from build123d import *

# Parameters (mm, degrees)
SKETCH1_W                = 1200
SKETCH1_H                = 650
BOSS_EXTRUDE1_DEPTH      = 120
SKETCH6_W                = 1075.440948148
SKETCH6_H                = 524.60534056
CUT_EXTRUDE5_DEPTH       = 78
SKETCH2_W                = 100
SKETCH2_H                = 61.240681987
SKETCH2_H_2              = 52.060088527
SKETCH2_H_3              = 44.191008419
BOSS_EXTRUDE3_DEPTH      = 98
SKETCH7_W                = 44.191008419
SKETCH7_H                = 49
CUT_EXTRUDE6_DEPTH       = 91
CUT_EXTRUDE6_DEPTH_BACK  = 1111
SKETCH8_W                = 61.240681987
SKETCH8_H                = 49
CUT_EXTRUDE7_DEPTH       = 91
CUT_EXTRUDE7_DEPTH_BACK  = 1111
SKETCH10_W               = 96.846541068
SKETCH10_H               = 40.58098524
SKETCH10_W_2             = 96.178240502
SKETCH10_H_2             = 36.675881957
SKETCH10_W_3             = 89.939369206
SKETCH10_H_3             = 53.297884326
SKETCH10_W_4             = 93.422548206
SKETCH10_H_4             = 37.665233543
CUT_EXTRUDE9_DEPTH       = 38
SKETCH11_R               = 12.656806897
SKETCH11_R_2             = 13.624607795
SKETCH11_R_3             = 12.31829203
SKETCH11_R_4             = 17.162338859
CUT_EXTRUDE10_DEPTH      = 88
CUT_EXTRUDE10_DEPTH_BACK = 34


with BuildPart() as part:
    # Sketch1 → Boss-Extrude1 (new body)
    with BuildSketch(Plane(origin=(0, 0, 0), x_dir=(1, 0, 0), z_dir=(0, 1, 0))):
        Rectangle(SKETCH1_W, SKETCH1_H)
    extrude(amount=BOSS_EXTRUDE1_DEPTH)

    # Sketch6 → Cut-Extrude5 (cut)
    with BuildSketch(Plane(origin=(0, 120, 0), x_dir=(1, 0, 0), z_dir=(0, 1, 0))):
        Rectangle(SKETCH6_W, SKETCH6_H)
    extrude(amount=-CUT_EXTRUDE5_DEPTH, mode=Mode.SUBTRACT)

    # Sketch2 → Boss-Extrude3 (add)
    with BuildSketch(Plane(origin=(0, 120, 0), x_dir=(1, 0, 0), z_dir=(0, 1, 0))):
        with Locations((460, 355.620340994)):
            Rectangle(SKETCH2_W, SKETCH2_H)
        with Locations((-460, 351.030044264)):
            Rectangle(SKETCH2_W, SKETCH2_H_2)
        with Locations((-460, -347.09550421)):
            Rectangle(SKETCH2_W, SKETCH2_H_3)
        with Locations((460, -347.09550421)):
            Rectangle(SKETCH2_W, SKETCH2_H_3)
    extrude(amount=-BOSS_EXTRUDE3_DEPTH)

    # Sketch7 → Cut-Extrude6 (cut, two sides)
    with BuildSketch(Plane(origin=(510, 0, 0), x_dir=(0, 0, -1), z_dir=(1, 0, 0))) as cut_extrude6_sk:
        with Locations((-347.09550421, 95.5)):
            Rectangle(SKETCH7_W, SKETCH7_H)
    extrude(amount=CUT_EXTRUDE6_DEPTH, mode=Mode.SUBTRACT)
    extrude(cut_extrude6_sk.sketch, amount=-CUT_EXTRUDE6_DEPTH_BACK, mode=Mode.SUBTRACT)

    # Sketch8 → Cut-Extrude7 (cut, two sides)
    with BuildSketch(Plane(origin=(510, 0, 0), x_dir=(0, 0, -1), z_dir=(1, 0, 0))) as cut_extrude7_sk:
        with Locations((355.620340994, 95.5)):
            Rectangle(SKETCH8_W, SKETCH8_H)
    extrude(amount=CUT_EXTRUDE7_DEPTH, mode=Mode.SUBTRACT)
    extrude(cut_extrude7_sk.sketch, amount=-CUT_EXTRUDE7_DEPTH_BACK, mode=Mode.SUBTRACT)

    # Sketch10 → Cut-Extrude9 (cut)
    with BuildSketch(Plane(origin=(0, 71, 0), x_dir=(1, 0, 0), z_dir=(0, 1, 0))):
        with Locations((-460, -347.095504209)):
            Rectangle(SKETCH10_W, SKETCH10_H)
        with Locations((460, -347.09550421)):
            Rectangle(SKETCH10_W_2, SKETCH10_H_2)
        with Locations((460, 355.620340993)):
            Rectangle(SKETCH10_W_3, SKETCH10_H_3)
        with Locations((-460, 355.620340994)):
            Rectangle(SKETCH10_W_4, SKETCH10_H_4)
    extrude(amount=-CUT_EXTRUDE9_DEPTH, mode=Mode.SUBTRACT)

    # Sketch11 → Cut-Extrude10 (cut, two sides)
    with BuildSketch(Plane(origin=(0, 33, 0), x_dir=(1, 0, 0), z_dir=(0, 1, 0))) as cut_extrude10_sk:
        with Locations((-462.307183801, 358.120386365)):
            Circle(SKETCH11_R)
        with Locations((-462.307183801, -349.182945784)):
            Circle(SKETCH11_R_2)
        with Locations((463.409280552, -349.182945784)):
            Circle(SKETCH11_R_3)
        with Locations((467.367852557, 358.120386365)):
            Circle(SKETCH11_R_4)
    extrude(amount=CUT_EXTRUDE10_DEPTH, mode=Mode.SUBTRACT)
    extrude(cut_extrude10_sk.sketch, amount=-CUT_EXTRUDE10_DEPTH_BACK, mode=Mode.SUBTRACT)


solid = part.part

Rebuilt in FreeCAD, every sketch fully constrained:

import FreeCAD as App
import Part
import Sketcher

V = App.Vector


def add_polygon(sketch, points):
    """Adds a closed chain of lines whose ends are joined by coincident constraints."""
    first, n = sketch.GeometryCount, len(points)
    for a, b in zip(points, points[1:] + points[:1]):
        sketch.addGeometry(Part.LineSegment(App.Vector(*a, 0), App.Vector(*b, 0)), False)
    for i in range(n):
        sketch.addConstraint(Sketcher.Constraint("Coincident", first + i, 2, first + (i + 1) % n, 1))

doc = App.newDocument("Part")
params = doc.addObject("Spreadsheet::Sheet", "Params")
for row, (alias, value) in enumerate([
    ("sketch1_width", "1200 mm"),
    ("sketch1_height", "650 mm"),
    ("pad1_length", "120 mm"),
    ("pocket1_length", "78 mm"),
    ("sketch3_width", "100 mm"),
    ("pad2_length", "98 mm"),
    ("sketch4_width", "49 mm"),
    ("sketch5_width", "49 mm"),
    ("pocket4_length", "38 mm"),
], start=1):
    params.set(f"A{row}", alias)
    params.set(f"B{row}", "=" + value)
    params.setAlias(f"B{row}", alias)

body = doc.addObject("PartDesign::Body", "Body")

sketch1 = doc.addObject("Sketcher::SketchObject", "Sketch")
body.addObject(sketch1)
sketch1.AttachmentSupport = (doc.XZ_Plane, [""])
sketch1.MapMode = "FlatFace"
add_polygon(sketch1, [(-600, -325), (-600, 325), (600, 325), (600, -325)])
sketch1.addConstraint([
    Sketcher.Constraint("Vertical", 0),
    Sketcher.Constraint("Horizontal", 1),
    Sketcher.Constraint("Vertical", 2),
    Sketcher.Constraint("Horizontal", 3),
    Sketcher.Constraint("Symmetric", 0, 2, 2, 2, -1, 1),
    Sketcher.Constraint("DistanceX", 1, 1, 1, 2, 1200.0),
    Sketcher.Constraint("DistanceY", 0, 1, 0, 2, 650.0),
])
sketch1.setExpression("Constraints[9]", "Params.sketch1_width")
sketch1.setExpression("Constraints[10]", "Params.sketch1_height")
pad1 = doc.addObject("PartDesign::Pad", "Pad")
body.addObject(pad1)
pad1.Profile = sketch1
pad1.setExpression("Length", "Params.pad1_length")
pad1.Reversed = True

sketch2 = doc.addObject("Sketcher::SketchObject", "Sketch001")
body.addObject(sketch2)
sketch2.AttachmentSupport = (doc.XZ_Plane, [""])
sketch2.MapMode = "FlatFace"
sketch2.AttachmentOffset = App.Placement(V(0, 0, -120), App.Rotation())
add_polygon(sketch2, [(-538, -262), (-538, 262), (538, 262), (538, -262)])
sketch2.addConstraint([
    Sketcher.Constraint("Vertical", 0),
    Sketcher.Constraint("Horizontal", 1),
    Sketcher.Constraint("Vertical", 2),
    Sketcher.Constraint("Horizontal", 3),
    Sketcher.Constraint("Symmetric", 0, 2, 2, 2, -1, 1),
    Sketcher.Constraint("DistanceX", 1, 1, 1, 2, 1075.440948),
    Sketcher.Constraint("DistanceY", 0, 1, 0, 2, 524.605341),
])
pocket1 = doc.addObject("PartDesign::Pocket", "Pocket")
body.addObject(pocket1)
pocket1.Profile = sketch2
pocket1.setExpression("Length", "Params.pocket1_length")
pocket1.Reversed = True

sketch3 = doc.addObject("Sketcher::SketchObject", "Sketch002")
body.addObject(sketch3)
sketch3.AttachmentSupport = (doc.XZ_Plane, [""])
sketch3.MapMode = "FlatFace"
sketch3.AttachmentOffset = App.Placement(V(0, 0, -120), App.Rotation())
add_polygon(sketch3, [(410, -386), (410, -325), (510, -325), (510, -386)])
add_polygon(sketch3, [(-510, -377), (-510, -325), (-410, -325), (-410, -377)])
add_polygon(sketch3, [(-510, 325), (-510, 369), (-410, 369), (-410, 325)])
add_polygon(sketch3, [(410, 325), (410, 369), (510, 369), (510, 325)])
sketch3.addConstraint([
    Sketcher.Constraint("Vertical", 0),
    Sketcher.Constraint("Horizontal", 1),
    Sketcher.Constraint("Vertical", 2),
    Sketcher.Constraint("Horizontal", 3),
    Sketcher.Constraint("Vertical", 4),
    Sketcher.Constraint("Horizontal", 5),
    Sketcher.Constraint("Vertical", 6),
    Sketcher.Constraint("Horizontal", 7),
    Sketcher.Constraint("Vertical", 8),
    Sketcher.Constraint("Horizontal", 9),
    Sketcher.Constraint("Vertical", 10),
    Sketcher.Constraint("Horizontal", 11),
    Sketcher.Constraint("Vertical", 12),
    Sketcher.Constraint("Horizontal", 13),
    Sketcher.Constraint("Vertical", 14),
    Sketcher.Constraint("Horizontal", 15),
    Sketcher.Constraint("Symmetric", 0, 2, 10, 2, -1, 1),
    Sketcher.Constraint("Symmetric", 4, 2, 14, 2, -1, 1),
    Sketcher.Constraint("Symmetric", 1, 2, 4, 2, -2),
    Sketcher.Constraint("Symmetric", 9, 2, 12, 2, -2),
    Sketcher.Constraint("Vertical", 7, 2, 8, 2),
    Sketcher.Constraint("Vertical", 6, 2, 9, 2),
    Sketcher.Constraint("DistanceX", 1, 1, 1, 2, 100.0),
    Sketcher.Constraint("DistanceX", -1, 1, 0, 2, 410.0),
    Sketcher.Constraint("DistanceY", 0, 2, -1, 1, 325.0),
    Sketcher.Constraint("DistanceY", 0, 1, 0, 2, 61.240682),
    Sketcher.Constraint("DistanceY", 4, 1, 4, 2, 52.060089),
    Sketcher.Constraint("DistanceY", 8, 1, 8, 2, 44.191008),
])
sketch3.setExpression("Constraints[38]", "Params.sketch3_width")
pad2 = doc.addObject("PartDesign::Pad", "Pad001")
body.addObject(pad2)
pad2.Profile = sketch3
pad2.setExpression("Length", "Params.pad2_length")

sketch4 = doc.addObject("Sketcher::SketchObject", "Sketch003")
body.addObject(sketch4)
sketch4.AttachmentSupport = (doc.YZ_Plane, [""])
sketch4.MapMode = "FlatFace"
sketch4.AttachmentOffset = App.Placement(V(0, 0, 510), App.Rotation())
add_polygon(sketch4, [(120, 369), (71, 369), (71, 325), (120, 325)])
sketch4.addConstraint([
    Sketcher.Constraint("Horizontal", 0),
    Sketcher.Constraint("Vertical", 1),
    Sketcher.Constraint("Horizontal", 2),
    Sketcher.Constraint("Vertical", 3),
    Sketcher.Constraint("DistanceX", 0, 2, 0, 1, 49.0),
    Sketcher.Constraint("DistanceX", -1, 1, 0, 2, 71.0),
    Sketcher.Constraint("DistanceY", -1, 1, 1, 2, 325.0),
    Sketcher.Constraint("DistanceY", 1, 2, 1, 1, 44.191008),
])
sketch4.setExpression("Constraints[8]", "Params.sketch4_width")
pocket2 = doc.addObject("PartDesign::Pocket", "Pocket001")
body.addObject(pocket2)
pocket2.Profile = sketch4
pocket2.Type = "ThroughAll"
pocket2.Midplane = True

sketch5 = doc.addObject("Sketcher::SketchObject", "Sketch004")
body.addObject(sketch5)
sketch5.AttachmentSupport = (doc.YZ_Plane, [""])
sketch5.MapMode = "FlatFace"
sketch5.AttachmentOffset = App.Placement(V(0, 0, 510), App.Rotation())
add_polygon(sketch5, [(120, -325), (71, -325), (71, -386), (120, -386)])
sketch5.addConstraint([
    Sketcher.Constraint("Horizontal", 0),
    Sketcher.Constraint("Vertical", 1),
    Sketcher.Constraint("Horizontal", 2),
    Sketcher.Constraint("Vertical", 3),
    Sketcher.Constraint("DistanceX", 0, 2, 0, 1, 49.0),
    Sketcher.Constraint("DistanceX", -1, 1, 0, 2, 71.0),
    Sketcher.Constraint("DistanceY", 0, 2, -1, 1, 325.0),
    Sketcher.Constraint("DistanceY", 1, 2, 1, 1, 61.240682),
])
sketch5.setExpression("Constraints[8]", "Params.sketch5_width")
pocket3 = doc.addObject("PartDesign::Pocket", "Pocket002")
body.addObject(pocket3)
pocket3.Profile = sketch5
pocket3.Type = "ThroughAll"
pocket3.Midplane = True

sketch6 = doc.addObject("Sketcher::SketchObject", "Sketch005")
body.addObject(sketch6)
sketch6.AttachmentSupport = (doc.XZ_Plane, [""])
sketch6.MapMode = "FlatFace"
sketch6.AttachmentOffset = App.Placement(V(0, 0, -71), App.Rotation())
add_polygon(sketch6, [(-508, 327), (-508, 367), (-412, 367), (-412, 327)])
add_polygon(sketch6, [(412, 329), (412, 365), (508, 365), (508, 329)])
add_polygon(sketch6, [(415, -382), (415, -329), (505, -329), (505, -382)])
add_polygon(sketch6, [(-507, -374), (-507, -337), (-413, -337), (-413, -374)])
sketch6.addConstraint([
    Sketcher.Constraint("Vertical", 0),
    Sketcher.Constraint("Horizontal", 1),
    Sketcher.Constraint("Vertical", 2),
    Sketcher.Constraint("Horizontal", 3),
    Sketcher.Constraint("Vertical", 4),
    Sketcher.Constraint("Horizontal", 5),
    Sketcher.Constraint("Vertical", 6),
    Sketcher.Constraint("Horizontal", 7),
    Sketcher.Constraint("Vertical", 8),
    Sketcher.Constraint("Horizontal", 9),
    Sketcher.Constraint("Vertical", 10),
    Sketcher.Constraint("Horizontal", 11),
    Sketcher.Constraint("Vertical", 12),
    Sketcher.Constraint("Horizontal", 13),
    Sketcher.Constraint("Vertical", 14),
    Sketcher.Constraint("Horizontal", 15),
    Sketcher.Constraint("DistanceX", 1, 1, 1, 2, 96.846541),
    Sketcher.Constraint("DistanceX", 5, 1, 5, 2, 96.178241),
    Sketcher.Constraint("DistanceX", 9, 1, 9, 2, 89.939369),
    Sketcher.Constraint("DistanceX", 13, 1, 13, 2, 93.422548),
    Sketcher.Constraint("DistanceY", 4, 1, 4, 2, 36.675882),
    Sketcher.Constraint("DistanceY", 8, 2, -1, 1, 328.971399),
    Sketcher.Constraint("DistanceY", 0, 1, 0, 2, 40.580985),
    Sketcher.Constraint("DistanceY", 8, 1, 8, 2, 53.297884),
    Sketcher.Constraint("DistanceY", 12, 1, 12, 2, 37.665234),
    Sketcher.Constraint("DistanceX", 0, 2, -1, 1, 508.423271),
    Sketcher.Constraint("DistanceY", -1, 1, 2, 2, 326.805012),
    Sketcher.Constraint("DistanceX", -1, 1, 4, 2, 411.91088),
    Sketcher.Constraint("DistanceY", 4, 2, 1, 2, 1.952552),
    Sketcher.Constraint("DistanceY", 12, 2, 0, 2, 704.173721),
    Sketcher.Constraint("DistanceX", 12, 2, 8, 2, 921.741589),
    Sketcher.Constraint("DistanceX", -1, 1, 8, 2, 415.030315),
])
pocket4 = doc.addObject("PartDesign::Pocket", "Pocket003")
body.addObject(pocket4)
pocket4.Profile = sketch6
pocket4.setExpression("Length", "Params.pocket4_length")
pocket4.Reversed = True

sketch7 = doc.addObject("Sketcher::SketchObject", "Sketch006")
body.addObject(sketch7)
sketch7.AttachmentSupport = (doc.XZ_Plane, [""])
sketch7.MapMode = "FlatFace"
sketch7.AttachmentOffset = App.Placement(V(0, 0, -33), App.Rotation())
sketch7.addGeometry([
    Part.Circle(V(-462, -358, 0), V(0, 0, 1), 13),
    Part.Circle(V(-462, 349, 0), V(0, 0, 1), 14),
    Part.Circle(V(463, 349, 0), V(0, 0, 1), 12),
    Part.Circle(V(467, -358, 0), V(0, 0, 1), 17),
], False)
sketch7.addConstraint([
    Sketcher.Constraint("Horizontal", 1, 3, 2, 3),
    Sketcher.Constraint("Horizontal", 0, 3, 3, 3),
    Sketcher.Constraint("Vertical", 0, 3, 1, 3),
    Sketcher.Constraint("Diameter", 0, 25.313614),
    Sketcher.Constraint("Diameter", 1, 27.249216),
    Sketcher.Constraint("Diameter", 2, 24.636584),
    Sketcher.Constraint("Diameter", 3, 34.324678),
    Sketcher.Constraint("DistanceX", -1, 1, 2, 3, 463.409281),
    Sketcher.Constraint("DistanceX", 0, 3, -1, 1, 462.307184),
    Sketcher.Constraint("DistanceY", 0, 3, -1, 1, 358.120386),
    Sketcher.Constraint("DistanceY", -1, 1, 1, 3, 349.182946),
    Sketcher.Constraint("DistanceX", -1, 1, 3, 3, 467.367853),
])
pocket5 = doc.addObject("PartDesign::Pocket", "Pocket004")
body.addObject(pocket5)
pocket5.Profile = sketch7
pocket5.Type = "ThroughAll"
pocket5.Midplane = True

doc.recompute()
